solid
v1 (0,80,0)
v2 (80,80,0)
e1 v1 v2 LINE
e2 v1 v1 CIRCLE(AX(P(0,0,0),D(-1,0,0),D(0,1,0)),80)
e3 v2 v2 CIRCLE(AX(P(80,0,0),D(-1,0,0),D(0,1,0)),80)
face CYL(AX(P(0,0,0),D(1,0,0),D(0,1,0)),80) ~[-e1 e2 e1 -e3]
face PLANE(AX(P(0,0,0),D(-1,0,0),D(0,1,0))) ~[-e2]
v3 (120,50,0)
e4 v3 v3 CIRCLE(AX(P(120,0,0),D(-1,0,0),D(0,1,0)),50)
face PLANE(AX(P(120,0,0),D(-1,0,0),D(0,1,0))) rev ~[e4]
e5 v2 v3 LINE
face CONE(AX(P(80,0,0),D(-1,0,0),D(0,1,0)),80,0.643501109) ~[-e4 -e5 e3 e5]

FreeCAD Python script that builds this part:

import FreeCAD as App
import Part
import Sketcher
Q = App.Units.Quantity

doc = App.newDocument("Part")
params = doc.addObject("Spreadsheet::Sheet", "Params")
for row, (alias, value) in enumerate([
    ("sketch1_width", "120 mm"),
    ("sketch1_width2", "80 mm"),
    ("sketch1_height", "50 mm"),
    ("revolution_angle", "360 deg"),
], start=1):
    params.set(f"A{row}", alias)
    params.set(f"B{row}", "=" + value)
    params.setAlias(f"B{row}", alias)

body = doc.addObject("PartDesign::Body", "Body")

sketch1 = doc.addObject("Sketcher::SketchObject", "Sketch")
body.addObject(sketch1)
sketch1.AttachmentSupport = (doc.XY_Plane, [""])
sketch1.MapMode = "FlatFace"
sketch1.addGeometry(Part.LineSegment(App.Vector(0, 80, 0), App.Vector(0, 0, 0)), False)
sketch1.addGeometry(Part.LineSegment(App.Vector(0, 0, 0), App.Vector(120, 0, 0)), False)
sketch1.addGeometry(Part.LineSegment(App.Vector(120, 0, 0), App.Vector(120, 50, 0)), False)
sketch1.addGeometry(Part.LineSegment(App.Vector(120, 50, 0), App.Vector(80, 80, 0)), False)
sketch1.addGeometry(Part.LineSegment(App.Vector(80, 80, 0), App.Vector(0, 80, 0)), False)
sketch1.addConstraint(Sketcher.Constraint("Coincident", 0, 2, 1, 1))
sketch1.addConstraint(Sketcher.Constraint("Coincident", 1, 2, 2, 1))
sketch1.addConstraint(Sketcher.Constraint("Coincident", 2, 2, 3, 1))
sketch1.addConstraint(Sketcher.Constraint("Coincident", 3, 2, 4, 1))
sketch1.addConstraint(Sketcher.Constraint("Coincident", 4, 2, 0, 1))
sketch1.addConstraint(Sketcher.Constraint("Vertical", 0))
sketch1.addConstraint(Sketcher.Constraint("Horizontal", 1))
sketch1.addConstraint(Sketcher.Constraint("Vertical", 2))
sketch1.addConstraint(Sketcher.Constraint("Horizontal", 4))
sketch1.addConstraint(Sketcher.Constraint("Coincident", 0, 2, -1, 1))
sketch1.addConstraint(Sketcher.Constraint("Equal", 4, 0))
sketch1.addConstraint(Sketcher.Constraint("DistanceX", 1, 1, 1, 2, Q("120 mm")))
sketch1.addConstraint(Sketcher.Constraint("DistanceX", 4, 2, 4, 1, Q("80 mm")))
sketch1.addConstraint(Sketcher.Constraint("DistanceY", 2, 1, 2, 2, Q("50 mm")))
sketch1.setExpression("Constraints[11]", "Params.sketch1_width")
sketch1.setExpression("Constraints[12]", "Params.sketch1_width2")
sketch1.setExpression("Constraints[13]", "Params.sketch1_height")
revolution = doc.addObject("PartDesign::Revolution", "Revolution")
body.addObject(revolution)
revolution.Profile = sketch1
revolution.ReferenceAxis = (sketch1, ["H_Axis"])
revolution.setExpression("Angle", "Params.revolution_angle")

doc.recompute()
